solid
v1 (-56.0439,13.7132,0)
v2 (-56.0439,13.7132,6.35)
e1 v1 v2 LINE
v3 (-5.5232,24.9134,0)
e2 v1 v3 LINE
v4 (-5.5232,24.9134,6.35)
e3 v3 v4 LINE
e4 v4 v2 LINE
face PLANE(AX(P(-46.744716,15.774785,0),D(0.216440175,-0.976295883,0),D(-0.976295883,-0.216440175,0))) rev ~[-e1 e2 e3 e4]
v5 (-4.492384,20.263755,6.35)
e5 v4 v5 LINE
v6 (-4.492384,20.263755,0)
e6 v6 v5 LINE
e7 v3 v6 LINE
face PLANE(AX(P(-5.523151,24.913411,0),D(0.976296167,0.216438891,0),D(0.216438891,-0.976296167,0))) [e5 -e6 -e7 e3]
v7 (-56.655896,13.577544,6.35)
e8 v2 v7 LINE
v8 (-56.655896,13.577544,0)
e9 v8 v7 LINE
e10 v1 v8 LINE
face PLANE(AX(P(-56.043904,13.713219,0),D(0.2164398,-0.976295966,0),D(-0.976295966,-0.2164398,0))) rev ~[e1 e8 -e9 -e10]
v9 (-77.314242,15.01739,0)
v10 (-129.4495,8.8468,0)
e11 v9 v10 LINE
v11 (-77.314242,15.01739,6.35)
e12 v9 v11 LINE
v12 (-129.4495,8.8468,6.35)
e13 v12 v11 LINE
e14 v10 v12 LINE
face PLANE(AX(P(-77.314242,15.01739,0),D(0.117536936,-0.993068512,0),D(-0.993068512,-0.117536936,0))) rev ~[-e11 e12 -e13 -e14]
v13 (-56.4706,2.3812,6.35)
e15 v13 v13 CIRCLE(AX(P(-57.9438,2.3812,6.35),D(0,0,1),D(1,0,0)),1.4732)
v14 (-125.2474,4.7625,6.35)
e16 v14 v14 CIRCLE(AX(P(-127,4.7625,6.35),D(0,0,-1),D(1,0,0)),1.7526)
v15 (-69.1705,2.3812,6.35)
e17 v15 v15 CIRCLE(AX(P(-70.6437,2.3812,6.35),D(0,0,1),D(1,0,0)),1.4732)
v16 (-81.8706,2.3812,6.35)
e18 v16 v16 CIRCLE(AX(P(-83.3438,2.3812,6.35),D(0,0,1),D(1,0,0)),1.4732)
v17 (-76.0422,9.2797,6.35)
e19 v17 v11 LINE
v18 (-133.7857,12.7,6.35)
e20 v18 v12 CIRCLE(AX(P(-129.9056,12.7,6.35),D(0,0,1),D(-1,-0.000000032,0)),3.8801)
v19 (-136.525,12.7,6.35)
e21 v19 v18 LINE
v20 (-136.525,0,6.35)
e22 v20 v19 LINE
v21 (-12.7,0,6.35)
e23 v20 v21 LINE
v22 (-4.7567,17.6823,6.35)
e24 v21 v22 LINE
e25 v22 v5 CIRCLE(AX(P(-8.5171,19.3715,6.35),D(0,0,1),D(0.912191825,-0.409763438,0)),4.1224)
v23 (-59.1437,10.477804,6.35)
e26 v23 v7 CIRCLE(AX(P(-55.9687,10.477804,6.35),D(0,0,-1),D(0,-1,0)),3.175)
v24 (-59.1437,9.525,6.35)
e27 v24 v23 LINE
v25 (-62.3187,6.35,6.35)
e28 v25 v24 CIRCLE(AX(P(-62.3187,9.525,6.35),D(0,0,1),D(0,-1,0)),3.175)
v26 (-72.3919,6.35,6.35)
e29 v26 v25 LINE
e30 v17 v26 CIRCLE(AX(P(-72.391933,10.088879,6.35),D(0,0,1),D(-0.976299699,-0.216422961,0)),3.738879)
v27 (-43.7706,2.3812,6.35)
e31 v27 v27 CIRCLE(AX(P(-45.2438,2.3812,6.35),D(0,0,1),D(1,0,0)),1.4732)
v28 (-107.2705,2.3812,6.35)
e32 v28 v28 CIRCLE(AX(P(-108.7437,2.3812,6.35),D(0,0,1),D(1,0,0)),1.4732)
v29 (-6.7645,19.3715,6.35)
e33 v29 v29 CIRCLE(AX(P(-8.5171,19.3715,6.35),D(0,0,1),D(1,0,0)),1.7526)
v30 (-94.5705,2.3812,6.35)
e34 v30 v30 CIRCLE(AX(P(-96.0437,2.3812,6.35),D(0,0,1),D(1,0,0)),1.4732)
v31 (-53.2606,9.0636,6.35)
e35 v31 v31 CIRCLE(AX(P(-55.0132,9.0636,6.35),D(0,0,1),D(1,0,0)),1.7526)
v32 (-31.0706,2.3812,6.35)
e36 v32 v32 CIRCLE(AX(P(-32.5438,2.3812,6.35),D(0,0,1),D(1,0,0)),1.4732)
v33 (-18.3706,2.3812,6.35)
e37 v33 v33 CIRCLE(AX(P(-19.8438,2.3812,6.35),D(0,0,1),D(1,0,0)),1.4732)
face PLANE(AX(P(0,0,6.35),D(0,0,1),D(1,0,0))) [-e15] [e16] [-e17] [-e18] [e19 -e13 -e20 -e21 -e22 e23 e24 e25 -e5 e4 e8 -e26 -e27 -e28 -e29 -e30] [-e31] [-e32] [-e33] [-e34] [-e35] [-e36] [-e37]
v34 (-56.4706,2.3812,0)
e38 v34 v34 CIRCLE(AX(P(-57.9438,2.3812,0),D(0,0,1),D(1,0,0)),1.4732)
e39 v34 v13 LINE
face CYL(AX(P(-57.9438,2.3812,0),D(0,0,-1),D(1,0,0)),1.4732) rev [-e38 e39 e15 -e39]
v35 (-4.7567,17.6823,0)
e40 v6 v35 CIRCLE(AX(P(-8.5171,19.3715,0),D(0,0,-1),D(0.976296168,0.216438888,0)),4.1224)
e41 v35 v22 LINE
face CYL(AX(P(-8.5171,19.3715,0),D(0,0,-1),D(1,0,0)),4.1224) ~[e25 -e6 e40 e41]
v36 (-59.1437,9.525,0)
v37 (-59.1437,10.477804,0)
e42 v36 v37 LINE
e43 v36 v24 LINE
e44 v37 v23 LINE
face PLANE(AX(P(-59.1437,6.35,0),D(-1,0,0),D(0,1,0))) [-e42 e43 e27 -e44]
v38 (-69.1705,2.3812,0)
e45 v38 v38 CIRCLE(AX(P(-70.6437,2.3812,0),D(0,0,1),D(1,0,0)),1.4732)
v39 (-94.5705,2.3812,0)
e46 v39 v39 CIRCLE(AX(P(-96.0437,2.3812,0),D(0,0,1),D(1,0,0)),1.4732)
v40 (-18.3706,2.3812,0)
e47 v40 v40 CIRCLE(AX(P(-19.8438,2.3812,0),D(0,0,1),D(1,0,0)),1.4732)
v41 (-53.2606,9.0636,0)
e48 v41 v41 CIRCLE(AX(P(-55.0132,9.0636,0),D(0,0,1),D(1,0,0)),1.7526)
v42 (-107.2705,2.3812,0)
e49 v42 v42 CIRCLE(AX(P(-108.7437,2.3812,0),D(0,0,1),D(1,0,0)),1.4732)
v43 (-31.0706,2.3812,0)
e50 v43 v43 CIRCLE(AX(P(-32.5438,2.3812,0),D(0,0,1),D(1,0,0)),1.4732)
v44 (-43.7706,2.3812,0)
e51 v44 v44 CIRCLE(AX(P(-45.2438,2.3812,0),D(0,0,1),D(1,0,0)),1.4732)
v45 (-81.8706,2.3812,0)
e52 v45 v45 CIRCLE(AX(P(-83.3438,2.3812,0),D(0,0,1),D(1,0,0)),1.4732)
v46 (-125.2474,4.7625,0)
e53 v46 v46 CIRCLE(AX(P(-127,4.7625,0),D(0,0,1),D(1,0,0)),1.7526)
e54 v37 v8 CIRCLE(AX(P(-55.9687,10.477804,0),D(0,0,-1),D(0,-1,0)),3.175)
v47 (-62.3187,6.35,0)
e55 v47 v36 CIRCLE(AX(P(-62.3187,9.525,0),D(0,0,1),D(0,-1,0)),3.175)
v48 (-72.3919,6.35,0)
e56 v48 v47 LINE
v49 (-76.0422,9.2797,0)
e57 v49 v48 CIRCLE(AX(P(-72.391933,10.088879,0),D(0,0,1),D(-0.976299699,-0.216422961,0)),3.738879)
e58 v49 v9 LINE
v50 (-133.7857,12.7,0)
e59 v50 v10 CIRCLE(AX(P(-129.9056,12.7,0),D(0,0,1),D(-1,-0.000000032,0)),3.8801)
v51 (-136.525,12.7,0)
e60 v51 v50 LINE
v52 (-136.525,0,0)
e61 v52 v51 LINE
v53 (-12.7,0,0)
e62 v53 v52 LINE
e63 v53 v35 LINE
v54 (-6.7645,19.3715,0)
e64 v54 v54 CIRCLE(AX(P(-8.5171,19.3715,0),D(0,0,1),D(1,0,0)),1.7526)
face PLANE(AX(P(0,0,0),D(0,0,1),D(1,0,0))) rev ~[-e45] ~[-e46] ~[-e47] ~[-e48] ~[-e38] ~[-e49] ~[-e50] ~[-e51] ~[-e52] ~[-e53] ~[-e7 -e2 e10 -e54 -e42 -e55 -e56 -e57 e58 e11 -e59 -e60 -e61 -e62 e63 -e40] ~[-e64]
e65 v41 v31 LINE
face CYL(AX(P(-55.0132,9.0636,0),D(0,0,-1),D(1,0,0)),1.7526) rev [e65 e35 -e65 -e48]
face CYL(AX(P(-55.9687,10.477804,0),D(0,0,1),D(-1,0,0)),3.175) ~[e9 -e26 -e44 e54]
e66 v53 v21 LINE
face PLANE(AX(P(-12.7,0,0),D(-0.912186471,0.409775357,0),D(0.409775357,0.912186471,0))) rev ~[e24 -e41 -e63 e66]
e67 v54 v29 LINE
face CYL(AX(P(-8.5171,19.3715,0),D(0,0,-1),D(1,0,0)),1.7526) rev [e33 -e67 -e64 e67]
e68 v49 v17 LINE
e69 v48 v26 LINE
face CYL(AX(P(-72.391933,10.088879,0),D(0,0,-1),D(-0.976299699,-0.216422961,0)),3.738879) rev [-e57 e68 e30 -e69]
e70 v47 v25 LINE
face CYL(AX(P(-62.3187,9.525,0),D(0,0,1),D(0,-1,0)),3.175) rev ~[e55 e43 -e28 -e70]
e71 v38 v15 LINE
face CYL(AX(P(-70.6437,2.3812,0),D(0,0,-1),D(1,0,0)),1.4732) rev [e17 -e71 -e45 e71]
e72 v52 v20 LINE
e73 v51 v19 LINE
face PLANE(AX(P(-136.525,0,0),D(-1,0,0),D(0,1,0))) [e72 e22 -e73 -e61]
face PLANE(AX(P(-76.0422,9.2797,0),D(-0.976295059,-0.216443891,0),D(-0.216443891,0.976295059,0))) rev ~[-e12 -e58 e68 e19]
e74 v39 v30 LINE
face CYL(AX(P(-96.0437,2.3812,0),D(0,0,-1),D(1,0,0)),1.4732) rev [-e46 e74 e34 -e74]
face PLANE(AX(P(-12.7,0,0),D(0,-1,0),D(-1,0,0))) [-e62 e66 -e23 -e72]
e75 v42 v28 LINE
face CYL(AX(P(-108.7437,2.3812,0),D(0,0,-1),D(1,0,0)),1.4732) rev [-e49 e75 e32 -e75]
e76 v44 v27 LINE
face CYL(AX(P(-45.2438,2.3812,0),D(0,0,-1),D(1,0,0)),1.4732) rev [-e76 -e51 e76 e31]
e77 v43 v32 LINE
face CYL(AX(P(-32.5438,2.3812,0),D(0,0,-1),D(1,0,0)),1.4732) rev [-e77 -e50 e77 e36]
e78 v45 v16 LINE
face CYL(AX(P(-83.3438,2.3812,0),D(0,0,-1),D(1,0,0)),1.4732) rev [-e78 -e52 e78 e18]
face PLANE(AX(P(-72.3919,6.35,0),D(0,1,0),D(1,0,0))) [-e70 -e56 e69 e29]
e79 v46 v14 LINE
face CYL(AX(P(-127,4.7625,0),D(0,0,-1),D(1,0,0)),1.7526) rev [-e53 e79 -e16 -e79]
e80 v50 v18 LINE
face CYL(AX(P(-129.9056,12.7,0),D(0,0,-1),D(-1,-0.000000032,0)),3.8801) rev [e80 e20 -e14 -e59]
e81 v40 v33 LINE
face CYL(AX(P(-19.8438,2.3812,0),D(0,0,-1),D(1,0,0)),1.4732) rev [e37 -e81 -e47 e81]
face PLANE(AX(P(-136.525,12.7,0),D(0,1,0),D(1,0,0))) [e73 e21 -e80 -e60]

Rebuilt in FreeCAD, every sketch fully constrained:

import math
import FreeCAD as App
import Part
import Sketcher

V = App.Vector
Q = App.Units.Quantity


def edges_at(feature, points):
    """Names of the edges that pass closest to the given points."""
    edges = feature.Shape.Edges
    near = lambda p: min(range(len(edges)), key=lambda i: edges[i].distToShape(Part.Vertex(*p))[0])
    return sorted({f"Edge{near(p) + 1}" for p in points})

doc = App.newDocument("Part")
body = doc.addObject("PartDesign::Body", "Body")

sketch1 = doc.addObject("Sketcher::SketchObject", "Sketch")
body.addObject(sketch1)
sketch1.AttachmentSupport = (doc.XY_Plane, [""])
sketch1.MapMode = "FlatFace"
sketch1.addGeometry(Part.LineSegment(V(-76, 9.3, 0), V(-77.3, 15, 0)), False)
sketch1.addGeometry(Part.LineSegment(V(-77.3, 15, 0), V(-129.4, 8.8, 0)), False)
sketch1.addGeometry(Part.ArcOfCircle(Part.Circle(V(-129.9, 12.7, 0), V(0, 0, 1), 3.9), math.radians(180), math.radians(277)), False)
sketch1.addGeometry(Part.LineSegment(V(-133.8, 12.7, 0), V(-136.5, 12.7, 0)), False)
sketch1.addGeometry(Part.LineSegment(V(-136.5, 12.7, 0), V(-136.5, 0, 0)), False)
sketch1.addGeometry(Part.LineSegment(V(-136.5, 0, 0), V(-12.7, 0, 0)), False)
sketch1.addGeometry(Part.LineSegment(V(-12.7, 0, 0), V(-4.8, 17.7, 0)), False)
sketch1.addGeometry(Part.ArcOfCircle(Part.Circle(V(-8.5, 19.4, 0), V(0, 0, 1), 4.1), math.radians(-24), math.radians(12)), False)
sketch1.addGeometry(Part.LineSegment(V(-4.5, 20.3, 0), V(-5.5, 24.9, 0)), False)
sketch1.addGeometry(Part.LineSegment(V(-5.5, 24.9, 0), V(-56, 13.7, 0)), False)
sketch1.addGeometry(Part.LineSegment(V(-56, 13.7, 0), V(-59.1, 13, 0)), False)
sketch1.addGeometry(Part.LineSegment(V(-59.1, 13, 0), V(-59.1, 6.3, 0)), False)
sketch1.addGeometry(Part.LineSegment(V(-59.1, 6.3, 0), V(-72.4, 6.3, 0)), False)
sketch1.addGeometry(Part.ArcOfCircle(Part.Circle(V(-72.4, 10.1, 0), V(0, 0, 1), 3.7), math.radians(-168), math.radians(-90)), False)
sketch1.addGeometry(Part.Circle(V(-127, 4.8, 0), V(0, 0, 1), 1.8), False)
sketch1.addGeometry(Part.Circle(V(-108.7, 2.4, 0), V(0, 0, 1), 1.5), False)
sketch1.addGeometry(Part.Circle(V(-96, 2.4, 0), V(0, 0, 1), 1.5), False)
sketch1.addGeometry(Part.Circle(V(-83.3, 2.4, 0), V(0, 0, 1), 1.5), False)
sketch1.addGeometry(Part.Circle(V(-70.6, 2.4, 0), V(0, 0, 1), 1.5), False)
sketch1.addGeometry(Part.Circle(V(-57.9, 2.4, 0), V(0, 0, 1), 1.5), False)
sketch1.addGeometry(Part.Circle(V(-45.2, 2.4, 0), V(0, 0, 1), 1.5), False)
sketch1.addGeometry(Part.Circle(V(-32.5, 2.4, 0), V(0, 0, 1), 1.5), False)
sketch1.addGeometry(Part.Circle(V(-19.8, 2.4, 0), V(0, 0, 1), 1.5), False)
sketch1.addGeometry(Part.Circle(V(-55, 9.1, 0), V(0, 0, 1), 1.8), False)
sketch1.addGeometry(Part.Circle(V(-8.5, 19.4, 0), V(0, 0, 1), 1.8), False)
sketch1.addConstraint(Sketcher.Constraint("Coincident", 0, 2, 1, 1))
sketch1.addConstraint(Sketcher.Constraint("Tangent", 1, 2, 2, 2))
sketch1.addConstraint(Sketcher.Constraint("Coincident", 2, 1, 3, 1))
sketch1.addConstraint(Sketcher.Constraint("Coincident", 3, 2, 4, 1))
sketch1.addConstraint(Sketcher.Constraint("Coincident", 4, 2, 5, 1))
sketch1.addConstraint(Sketcher.Constraint("Coincident", 5, 2, 6, 1))
sketch1.addConstraint(Sketcher.Constraint("Tangent", 6, 2, 7, 1))
sketch1.addConstraint(Sketcher.Constraint("Tangent", 7, 2, 8, 1))
sketch1.addConstraint(Sketcher.Constraint("Coincident", 8, 2, 9, 1))
sketch1.addConstraint(Sketcher.Constraint("Coincident", 9, 2, 10, 1))
sketch1.addConstraint(Sketcher.Constraint("Coincident", 10, 2, 11, 1))
sketch1.addConstraint(Sketcher.Constraint("Coincident", 11, 2, 12, 1))
sketch1.addConstraint(Sketcher.Constraint("Tangent", 12, 2, 13, 2))
sketch1.addConstraint(Sketcher.Constraint("Tangent", 13, 1, 0, 1))
sketch1.addConstraint(Sketcher.Constraint("Horizontal", 3))
sketch1.addConstraint(Sketcher.Constraint("Vertical", 4))
sketch1.addConstraint(Sketcher.Constraint("Horizontal", 5))
sketch1.addConstraint(Sketcher.Constraint("Vertical", 11))
sketch1.addConstraint(Sketcher.Constraint("Horizontal", 12))
sketch1.addConstraint(Sketcher.Constraint("Coincident", 24, 3, 7, 3))
sketch1.addConstraint(Sketcher.Constraint("Equal", 15, 16))
sketch1.addConstraint(Sketcher.Constraint("Equal", 16, 17))
sketch1.addConstraint(Sketcher.Constraint("Equal", 17, 18))
sketch1.addConstraint(Sketcher.Constraint("Equal", 18, 19))
sketch1.addConstraint(Sketcher.Constraint("Equal", 19, 20))
sketch1.addConstraint(Sketcher.Constraint("Equal", 20, 21))
sketch1.addConstraint(Sketcher.Constraint("Equal", 21, 22))
sketch1.addConstraint(Sketcher.Constraint("Equal", 14, 23))
sketch1.addConstraint(Sketcher.Constraint("Equal", 23, 24))
sketch1.addConstraint(Sketcher.Constraint("PointOnObject", 4, 2, -1))
sketch1.addConstraint(Sketcher.Constraint("Parallel", 0, 8))
sketch1.addConstraint(Sketcher.Constraint("Perpendicular", 8, 9))
sketch1.addConstraint(Sketcher.Constraint("Parallel", 9, 10))
sketch1.addConstraint(Sketcher.Constraint("Horizontal", 15, 3, 16, 3))
sketch1.addConstraint(Sketcher.Constraint("Horizontal", 16, 3, 17, 3))
sketch1.addConstraint(Sketcher.Constraint("Horizontal", 17, 3, 18, 3))
sketch1.addConstraint(Sketcher.Constraint("Horizontal", 18, 3, 19, 3))
sketch1.addConstraint(Sketcher.Constraint("Horizontal", 19, 3, 20, 3))
sketch1.addConstraint(Sketcher.Constraint("Horizontal", 20, 3, 21, 3))
sketch1.addConstraint(Sketcher.Constraint("Horizontal", 21, 3, 22, 3))
sketch1.addConstraint(Sketcher.Constraint("Diameter", 14, Q("0.138 in")))
sketch1.addConstraint(Sketcher.Constraint("Diameter", 15, Q("0.116 in")))
sketch1.addConstraint(Sketcher.Constraint("DistanceY", 4, 2, 4, 1, Q("0.5 in")))
sketch1.addConstraint(Sketcher.Constraint("DistanceX", 14, 3, -1, 1, Q("5 in")))
sketch1.addConstraint(Sketcher.Constraint("DistanceX", 15, 3, 17, 3, Q("1 in")))
sketch1.addConstraint(Sketcher.Constraint("DistanceX", 16, 3, 18, 3, Q("1 in")))
sketch1.addConstraint(Sketcher.Constraint("DistanceX", 17, 3, 19, 3, Q("1 in")))
sketch1.addConstraint(Sketcher.Constraint("DistanceX", 18, 3, 20, 3, Q("1 in")))
sketch1.addConstraint(Sketcher.Constraint("DistanceX", 19, 3, 21, 3, Q("1 in")))
sketch1.addConstraint(Sketcher.Constraint("DistanceX", 20, 3, 22, 3, Q("1 in")))
sketch1.addConstraint(Sketcher.Constraint("DistanceY", -1, 1, 2, 3, Q("0.5 in")))
sketch1.addConstraint(Sketcher.Constraint("DistanceX", 5, 2, -1, 1, Q("0.5 in")))
sketch1.addConstraint(Sketcher.Constraint("DistanceX", 15, 3, 16, 3, Q("0.5 in")))
sketch1.addConstraint(Sketcher.Constraint("DistanceY", -1, 1, 11, 2, Q("0.25 in")))
sketch1.addConstraint(Sketcher.Constraint("Distance", 8, Q("0.1875 in")))
sketch1.addConstraint(Sketcher.Constraint("Distance", 10, Q("0.125 in")))
sketch1.addConstraint(Sketcher.Constraint("DistanceY", -1, 1, 14, 3, Q("0.1875 in")))
sketch1.addConstraint(Sketcher.Constraint("DistanceY", -1, 1, 15, 3, Q("0.093748 in")))
sketch1.addConstraint(Sketcher.Constraint("DistanceX", 3, 2, 14, 3, Q("0.375 in")))
sketch1.addConstraint(Sketcher.Constraint("Angle", 0, Q("102.5003 deg")))
sketch1.addConstraint(Sketcher.Constraint("Radius", 7, Q("0.1623 in")))
sketch1.addConstraint(Sketcher.Constraint("Radius", 13, Q("0.1472 in")))
sketch1.addConstraint(Sketcher.Constraint("Angle", 1, Q("-173.25 deg")))
sketch1.addConstraint(Sketcher.Constraint("Angle", 6, Q("65.8093 deg")))
sketch1.addConstraint(Sketcher.Constraint("Radius", 2, Q("3.88 mm")))
sketch1.addConstraint(Sketcher.Constraint("DistanceX", 15, 3, -1, 1, Q("4.281248 in")))
sketch1.addConstraint(Sketcher.Constraint("DistanceX", 0, 2, 23, 3, Q("0.878 in")))
sketch1.addConstraint(Sketcher.Constraint("DistanceY", 23, 3, 10, 2, Q("0.156 in")))
sketch1.addConstraint(Sketcher.Constraint("Distance", 1, Q("2.0669 in")))
sketch1.addConstraint(Sketcher.Constraint("Distance", 9, Q("2.0373 in")))
sketch1.addConstraint(Sketcher.Constraint("DistanceX", 3, 2, 3, 1, Q("2.7393 mm")))
sketch1.addConstraint(Sketcher.Constraint("DistanceX", 12, 2, 12, 1, Q("13.2482 mm")))
pad1 = doc.addObject("PartDesign::Pad", "Pad")
body.addObject(pad1)
pad1.Profile = sketch1
pad1.Length = Q("0.25 in")

sketch2 = doc.addObject("Sketcher::SketchObject", "Sketch001")
body.addObject(sketch2)
sketch2.AttachmentSupport = (doc.XY_Plane, [""])
sketch2.MapMode = "FlatFace"
sketch2.addGeometry(Part.Circle(V(-8.5, 19.4, 0), V(0, 0, 1), 1.8), False)
sketch2.addConstraint(Sketcher.Constraint("Diameter", 0, Q("0.138 in")))
sketch2.addConstraint(Sketcher.Constraint("DistanceX", 0, 3, -1, 1, Q("8.517 mm")))
sketch2.addConstraint(Sketcher.Constraint("DistanceY", -1, 1, 0, 3, Q("19.3715 mm")))
pocket1 = doc.addObject("PartDesign::Pocket", "Pocket")
body.addObject(pocket1)
pocket1.Profile = sketch2
pocket1.Type = "ThroughAll"
pocket1.Reversed = True
doc.recompute()

fillet = doc.addObject("PartDesign::Fillet", "Fillet")
body.addObject(fillet)
fillet.Base = (pocket1, edges_at(pocket1, [(-59.144, 13.026, 3.175), (-59.144, 6.35, 3.175)]))
fillet.Radius = Q("0.125 in")

doc.recompute()
